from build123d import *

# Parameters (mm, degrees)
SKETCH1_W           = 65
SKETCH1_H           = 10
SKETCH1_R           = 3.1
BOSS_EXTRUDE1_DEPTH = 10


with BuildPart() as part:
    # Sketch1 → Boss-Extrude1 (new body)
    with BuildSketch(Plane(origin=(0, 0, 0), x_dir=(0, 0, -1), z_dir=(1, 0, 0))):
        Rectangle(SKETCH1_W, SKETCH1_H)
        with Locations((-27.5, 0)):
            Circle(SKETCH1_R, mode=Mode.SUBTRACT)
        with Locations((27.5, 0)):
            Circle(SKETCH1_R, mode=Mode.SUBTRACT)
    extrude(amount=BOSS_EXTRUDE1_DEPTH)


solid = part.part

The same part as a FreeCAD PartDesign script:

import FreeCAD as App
import Part
import Sketcher

V = App.Vector
Q = App.Units.Quantity


def add_polygon(sketch, points):
    """Adds a closed chain of lines whose ends are joined by coincident constraints."""
    first, n = sketch.GeometryCount, len(points)
    for a, b in zip(points, points[1:] + points[:1]):
        sketch.addGeometry(Part.LineSegment(App.Vector(*a, 0), App.Vector(*b, 0)), False)
    for i in range(n):
        sketch.addConstraint(Sketcher.Constraint("Coincident", first + i, 2, first + (i + 1) % n, 1))

doc = App.newDocument("Part")
params = doc.addObject("Spreadsheet::Sheet", "Params")
for row, (alias, value) in enumerate([
    ("sketch1_diameter", "6.2 mm"),
    ("sketch1_width", "10 mm"),
    ("sketch1_height", "65 mm"),
    ("pad1_length", "10 mm"),
], start=1):
    params.set(f"A{row}", alias)
    params.set(f"B{row}", "=" + value)
    params.setAlias(f"B{row}", alias)

body = doc.addObject("PartDesign::Body", "Body")

# Sketch on YZ plane
sketch1 = doc.addObject("Sketcher::SketchObject", "Sketch")
body.addObject(sketch1)
sketch1.AttachmentSupport = (doc.YZ_Plane, [""])
sketch1.MapMode = "FlatFace"
add_polygon(sketch1, [(5, 32.5), (-5, 32.5), (-5, -32.5), (5, -32.5)])  # lines 0-3
sketch1.addGeometry(Part.Circle(V(0, 27.5, 0), V(0, 0, 1), 3.1), False)  # 4
sketch1.addGeometry(Part.Circle(V(0, -27.5, 0), V(0, 0, 1), 3.1), False)  # 5
sketch1.addConstraint(Sketcher.Constraint("Horizontal", 0))
sketch1.addConstraint(Sketcher.Constraint("Vertical", 1))
sketch1.addConstraint(Sketcher.Constraint("Horizontal", 2))
sketch1.addConstraint(Sketcher.Constraint("Vertical", 3))
sketch1.addConstraint(Sketcher.Constraint("Equal", 4, 5))
sketch1.addConstraint(Sketcher.Constraint("Symmetric", 4, 3, 5, 3, -1, 1))
sketch1.addConstraint(Sketcher.Constraint("Symmetric", 0, 2, 2, 2, -1, 1))
sketch1.addConstraint(Sketcher.Constraint("PointOnObject", 4, 3, -2))
sketch1.addConstraint(Sketcher.Constraint("Diameter", 4, Q("6.2 mm")))
sketch1.addConstraint(Sketcher.Constraint("DistanceX", 0, 2, 0, 1, Q("10 mm")))
sketch1.addConstraint(Sketcher.Constraint("DistanceY", 1, 2, 1, 1, Q("65 mm")))
sketch1.addConstraint(Sketcher.Constraint("DistanceY", 5, 3, 4, 3, Q("55 mm")))
sketch1.setExpression("Constraints[12]", "Params.sketch1_diameter")
sketch1.setExpression("Constraints[13]", "Params.sketch1_width")
sketch1.setExpression("Constraints[14]", "Params.sketch1_height")
pad1 = doc.addObject("PartDesign::Pad", "Pad")
body.addObject(pad1)
pad1.Profile = sketch1
pad1.setExpression("Length", "Params.pad1_length")

doc.recompute()
